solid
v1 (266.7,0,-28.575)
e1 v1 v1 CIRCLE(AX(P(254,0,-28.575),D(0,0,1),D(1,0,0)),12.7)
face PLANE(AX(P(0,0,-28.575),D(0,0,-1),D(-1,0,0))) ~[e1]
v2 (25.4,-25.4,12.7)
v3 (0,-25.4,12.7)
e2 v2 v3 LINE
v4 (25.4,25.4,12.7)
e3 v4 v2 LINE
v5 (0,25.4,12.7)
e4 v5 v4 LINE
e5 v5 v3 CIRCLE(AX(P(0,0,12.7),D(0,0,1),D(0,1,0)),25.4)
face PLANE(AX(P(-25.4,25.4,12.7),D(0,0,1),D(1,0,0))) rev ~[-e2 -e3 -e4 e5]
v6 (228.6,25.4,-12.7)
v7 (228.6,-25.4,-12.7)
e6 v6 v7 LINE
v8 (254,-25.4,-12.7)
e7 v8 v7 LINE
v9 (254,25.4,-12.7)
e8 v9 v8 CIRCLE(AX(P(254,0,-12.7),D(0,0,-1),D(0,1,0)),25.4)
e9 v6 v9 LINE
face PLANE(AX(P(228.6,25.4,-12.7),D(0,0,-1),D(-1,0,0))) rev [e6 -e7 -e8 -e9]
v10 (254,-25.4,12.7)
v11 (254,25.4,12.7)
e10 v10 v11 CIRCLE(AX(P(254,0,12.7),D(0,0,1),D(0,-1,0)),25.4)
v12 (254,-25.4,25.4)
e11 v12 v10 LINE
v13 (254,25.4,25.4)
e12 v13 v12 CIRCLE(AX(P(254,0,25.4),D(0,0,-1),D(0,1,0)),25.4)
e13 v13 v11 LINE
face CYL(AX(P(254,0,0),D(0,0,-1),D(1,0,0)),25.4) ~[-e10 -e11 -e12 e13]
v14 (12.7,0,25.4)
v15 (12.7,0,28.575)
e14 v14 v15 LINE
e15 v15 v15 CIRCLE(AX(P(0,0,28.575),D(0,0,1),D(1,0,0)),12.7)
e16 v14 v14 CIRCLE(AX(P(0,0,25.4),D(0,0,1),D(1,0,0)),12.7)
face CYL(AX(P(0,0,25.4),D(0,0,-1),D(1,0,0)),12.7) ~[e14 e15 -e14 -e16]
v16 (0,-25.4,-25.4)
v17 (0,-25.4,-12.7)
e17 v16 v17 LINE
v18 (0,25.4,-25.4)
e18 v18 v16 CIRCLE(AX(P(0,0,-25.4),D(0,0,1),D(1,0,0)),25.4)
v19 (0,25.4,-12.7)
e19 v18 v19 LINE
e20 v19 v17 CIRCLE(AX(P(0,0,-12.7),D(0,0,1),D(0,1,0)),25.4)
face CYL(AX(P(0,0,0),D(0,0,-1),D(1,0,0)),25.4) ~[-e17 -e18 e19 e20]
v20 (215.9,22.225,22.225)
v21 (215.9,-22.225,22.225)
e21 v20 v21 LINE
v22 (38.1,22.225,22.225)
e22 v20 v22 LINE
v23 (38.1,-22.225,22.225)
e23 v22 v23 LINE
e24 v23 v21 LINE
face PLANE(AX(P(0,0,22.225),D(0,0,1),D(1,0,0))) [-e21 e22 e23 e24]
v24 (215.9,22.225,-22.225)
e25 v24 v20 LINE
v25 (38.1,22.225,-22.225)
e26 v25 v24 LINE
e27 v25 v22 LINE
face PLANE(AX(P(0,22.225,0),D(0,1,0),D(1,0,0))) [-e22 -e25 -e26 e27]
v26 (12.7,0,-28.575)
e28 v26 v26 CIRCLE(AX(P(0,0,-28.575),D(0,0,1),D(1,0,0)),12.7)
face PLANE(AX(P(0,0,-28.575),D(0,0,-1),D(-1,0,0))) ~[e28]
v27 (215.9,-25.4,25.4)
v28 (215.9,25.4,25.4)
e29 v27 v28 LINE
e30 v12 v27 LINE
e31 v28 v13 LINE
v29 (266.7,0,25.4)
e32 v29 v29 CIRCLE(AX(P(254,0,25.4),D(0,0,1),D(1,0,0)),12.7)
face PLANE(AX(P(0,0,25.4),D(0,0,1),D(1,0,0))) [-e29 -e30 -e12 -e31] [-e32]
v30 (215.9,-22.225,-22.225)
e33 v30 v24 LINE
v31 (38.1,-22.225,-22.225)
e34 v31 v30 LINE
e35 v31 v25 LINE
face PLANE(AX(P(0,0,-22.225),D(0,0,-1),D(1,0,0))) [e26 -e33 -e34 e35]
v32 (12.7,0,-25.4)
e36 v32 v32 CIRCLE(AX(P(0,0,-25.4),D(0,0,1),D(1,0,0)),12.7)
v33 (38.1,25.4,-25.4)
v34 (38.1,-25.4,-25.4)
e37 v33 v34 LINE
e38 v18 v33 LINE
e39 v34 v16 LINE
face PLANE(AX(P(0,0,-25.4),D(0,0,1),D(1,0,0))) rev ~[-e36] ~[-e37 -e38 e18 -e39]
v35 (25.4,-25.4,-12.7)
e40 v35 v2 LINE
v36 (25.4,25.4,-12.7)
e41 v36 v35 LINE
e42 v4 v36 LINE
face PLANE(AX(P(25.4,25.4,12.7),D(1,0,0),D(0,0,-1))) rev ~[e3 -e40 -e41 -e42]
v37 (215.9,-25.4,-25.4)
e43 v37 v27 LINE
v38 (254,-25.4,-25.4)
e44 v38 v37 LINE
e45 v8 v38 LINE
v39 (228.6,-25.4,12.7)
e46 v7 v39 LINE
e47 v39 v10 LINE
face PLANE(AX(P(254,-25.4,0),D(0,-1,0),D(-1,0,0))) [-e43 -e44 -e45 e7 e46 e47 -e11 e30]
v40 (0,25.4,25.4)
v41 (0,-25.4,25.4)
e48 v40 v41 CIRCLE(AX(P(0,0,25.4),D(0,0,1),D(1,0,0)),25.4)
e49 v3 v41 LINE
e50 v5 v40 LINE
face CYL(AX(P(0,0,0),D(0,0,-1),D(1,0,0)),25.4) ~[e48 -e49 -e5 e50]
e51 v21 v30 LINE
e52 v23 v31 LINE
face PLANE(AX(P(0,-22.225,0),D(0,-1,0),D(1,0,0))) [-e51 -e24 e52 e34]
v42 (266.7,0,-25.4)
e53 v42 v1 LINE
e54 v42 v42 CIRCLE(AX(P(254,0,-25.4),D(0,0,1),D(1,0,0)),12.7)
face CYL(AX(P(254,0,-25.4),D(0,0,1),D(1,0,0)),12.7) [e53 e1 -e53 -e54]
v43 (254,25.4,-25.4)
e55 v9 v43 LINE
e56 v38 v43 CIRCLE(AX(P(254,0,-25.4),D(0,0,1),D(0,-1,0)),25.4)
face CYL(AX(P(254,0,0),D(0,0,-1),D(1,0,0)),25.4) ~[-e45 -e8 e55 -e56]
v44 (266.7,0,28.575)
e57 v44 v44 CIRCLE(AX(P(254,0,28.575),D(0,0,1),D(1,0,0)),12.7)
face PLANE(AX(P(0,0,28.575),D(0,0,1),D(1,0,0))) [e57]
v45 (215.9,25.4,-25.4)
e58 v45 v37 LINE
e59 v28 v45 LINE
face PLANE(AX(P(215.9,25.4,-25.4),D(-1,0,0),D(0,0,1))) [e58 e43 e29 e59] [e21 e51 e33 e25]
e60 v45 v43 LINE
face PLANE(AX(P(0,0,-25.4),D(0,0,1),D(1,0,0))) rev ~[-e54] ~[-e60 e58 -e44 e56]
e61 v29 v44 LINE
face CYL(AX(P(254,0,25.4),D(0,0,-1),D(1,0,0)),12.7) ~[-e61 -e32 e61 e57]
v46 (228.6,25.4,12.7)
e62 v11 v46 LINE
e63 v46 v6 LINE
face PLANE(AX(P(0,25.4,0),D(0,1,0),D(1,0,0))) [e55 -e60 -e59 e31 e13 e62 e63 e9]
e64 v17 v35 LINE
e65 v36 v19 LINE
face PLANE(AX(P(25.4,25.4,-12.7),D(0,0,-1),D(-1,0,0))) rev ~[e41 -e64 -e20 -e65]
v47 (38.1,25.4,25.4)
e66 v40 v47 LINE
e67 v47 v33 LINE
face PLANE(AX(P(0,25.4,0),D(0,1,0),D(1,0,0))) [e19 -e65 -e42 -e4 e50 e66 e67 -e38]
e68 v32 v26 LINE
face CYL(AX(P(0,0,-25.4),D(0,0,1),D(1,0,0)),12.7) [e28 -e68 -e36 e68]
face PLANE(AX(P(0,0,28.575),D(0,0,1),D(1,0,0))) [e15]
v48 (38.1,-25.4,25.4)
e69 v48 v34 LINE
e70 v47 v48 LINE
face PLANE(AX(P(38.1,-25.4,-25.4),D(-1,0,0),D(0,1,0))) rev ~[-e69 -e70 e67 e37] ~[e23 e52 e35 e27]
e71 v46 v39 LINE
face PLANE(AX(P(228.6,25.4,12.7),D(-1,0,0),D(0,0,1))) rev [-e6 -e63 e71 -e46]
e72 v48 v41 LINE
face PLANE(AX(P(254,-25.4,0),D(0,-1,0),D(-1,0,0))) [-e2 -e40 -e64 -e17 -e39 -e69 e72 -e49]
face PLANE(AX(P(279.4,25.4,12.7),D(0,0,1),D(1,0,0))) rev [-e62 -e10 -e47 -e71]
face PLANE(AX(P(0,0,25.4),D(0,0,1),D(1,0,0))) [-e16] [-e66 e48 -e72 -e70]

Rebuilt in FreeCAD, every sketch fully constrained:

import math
import FreeCAD as App
import Part
import Sketcher

V = App.Vector
Q = App.Units.Quantity

doc = App.newDocument("Part")
body = doc.addObject("PartDesign::Body", "Body")

# Sketch on XY plane
sketch1 = body.newObject("Sketcher::SketchObject", "Sketch")
sketch1.AttachmentSupport = (doc.getObject("XY_Plane"), [""])
sketch1.MapMode = "FlatFace"
sketch1.addGeometry([
    Part.LineSegment(V(254, 25, 0), V(0, 25, 0)),
    Part.ArcOfCircle(Part.Circle(V(0, 0, 0), V(0, 0, 1), 25), math.radians(90), math.radians(270)),
    Part.LineSegment(V(0, -25, 0), V(254, -25, 0)),
    Part.ArcOfCircle(Part.Circle(V(254, 0, 0), V(0, 0, 1), 25), math.radians(-90), math.radians(90)),
], False)
sketch1.addConstraint([
    Sketcher.Constraint("Tangent", 0, 2, 1, 1),
    Sketcher.Constraint("Tangent", 1, 2, 2, 1),
    Sketcher.Constraint("Tangent", 2, 2, 3, 1),
    Sketcher.Constraint("Tangent", 3, 2, 0, 1),
    Sketcher.Constraint("Horizontal", 0),
    Sketcher.Constraint("Horizontal", 2),
    Sketcher.Constraint("Coincident", 1, 3, -1, 1),
    Sketcher.Constraint("Radius", 1, Q("1 in")),
    Sketcher.Constraint("DistanceX", 0, 2, 0, 1, Q("10 in")),
])
pad1 = body.newObject("PartDesign::Pad", "Pad")
pad1.Profile = sketch1
pad1.Length = Q("2 in")
pad1.Midplane = True

# Sketch on XZ plane
sketch2 = body.newObject("Sketcher::SketchObject", "Sketch001")
sketch2.AttachmentSupport = (doc.getObject("XZ_Plane"), [""])
sketch2.MapMode = "FlatFace"
sketch2.AttachmentOffset = App.Placement(V(0, 0, -1 * 25.4), App.Rotation())
sketch2.addGeometry([
    Part.LineSegment(V(25, -13, 0), V(-25, -13, 0)),
    Part.LineSegment(V(-25, -13, 0), V(-25, 13, 0)),
    Part.LineSegment(V(-25, 13, 0), V(25, 13, 0)),
    Part.LineSegment(V(25, 13, 0), V(25, -13, 0)),
], False)
sketch2.addConstraint([
    Sketcher.Constraint("Coincident", 0, 2, 1, 1),
    Sketcher.Constraint("Coincident", 1, 2, 2, 1),
    Sketcher.Constraint("Coincident", 2, 2, 3, 1),
    Sketcher.Constraint("Coincident", 3, 2, 0, 1),
    Sketcher.Constraint("Horizontal", 0),
    Sketcher.Constraint("Vertical", 1),
    Sketcher.Constraint("Horizontal", 2),
    Sketcher.Constraint("Vertical", 3),
    Sketcher.Constraint("Symmetric", 0, 2, 2, 2, -1, 1),
    Sketcher.Constraint("DistanceX", 0, 2, 0, 1, Q("2 in")),
    Sketcher.Constraint("DistanceY", 1, 1, 1, 2, Q("1 in")),
])
pocket1 = body.newObject("PartDesign::Pocket", "Pocket")
pocket1.Profile = sketch2
pocket1.Type = "ThroughAll"
pocket1.Reversed = True

# Sketch on XY plane
sketch3 = body.newObject("Sketcher::SketchObject", "Sketch002")
sketch3.AttachmentSupport = (doc.getObject("XY_Plane"), [""])
sketch3.MapMode = "FlatFace"
sketch3.AttachmentOffset = App.Placement(V(0, 0, 1 * 25.4), App.Rotation())
sketch3.addGeometry([
    Part.LineSegment(V(38, -25, 0), V(216, -25, 0)),
    Part.LineSegment(V(216, -25, 0), V(216, 25, 0)),
    Part.LineSegment(V(216, 25, 0), V(38, 25, 0)),
    Part.LineSegment(V(38, 25, 0), V(38, -25, 0)),
], False)
sketch3.addConstraint([
    Sketcher.Constraint("Coincident", 0, 2, 1, 1),
    Sketcher.Constraint("Coincident", 1, 2, 2, 1),
    Sketcher.Constraint("Coincident", 2, 2, 3, 1),
    Sketcher.Constraint("Coincident", 3, 2, 0, 1),
    Sketcher.Constraint("Horizontal", 0),
    Sketcher.Constraint("Vertical", 1),
    Sketcher.Constraint("Horizontal", 2),
    Sketcher.Constraint("Vertical", 3),
    Sketcher.Constraint("DistanceX", 0, 1, 0, 2, Q("7 in")),
    Sketcher.Constraint("DistanceY", 1, 1, 1, 2, Q("2 in")),
    Sketcher.Constraint("DistanceY", 0, 2, -1, 1, Q("1 in")),
    Sketcher.Constraint("DistanceX", -1, 1, 0, 2, Q("8.5 in")),
])
pocket2 = body.newObject("PartDesign::Pocket", "Pocket001")
pocket2.Profile = sketch3
pocket2.Length = Q("0.125 in")
doc.recompute()

polarpattern = body.newObject("PartDesign::PolarPattern", "PolarPattern")
polarpattern.Originals = [pocket2]
polarpattern.Axis = (doc.getObject("X_Axis"), [""])
polarpattern.Angle = 360
polarpattern.Occurrences = 4
body.Tip = polarpattern
doc.recompute()

datumplane = body.newObject("PartDesign::Plane", "DatumPlane")
datumplane.AttachmentSupport = (doc.getObject("YZ_Plane"), [""])
datumplane.MapMode = "FlatFace"
datumplane.AttachmentOffset = App.Placement(V(0, 0, 5 * 25.4), App.Rotation())
mirrored = body.newObject("PartDesign::Mirrored", "Mirrored")
mirrored.Originals = [pocket1]
mirrored.MirrorPlane = (datumplane, [""])
body.Tip = mirrored

# Sketch on XY plane
sketch4 = body.newObject("Sketcher::SketchObject", "Sketch003")
sketch4.AttachmentSupport = (doc.getObject("XY_Plane"), [""])
sketch4.MapMode = "FlatFace"
sketch4.AttachmentOffset = App.Placement(V(0, 0, 1 * 25.4), App.Rotation())
sketch4.addGeometry([
    Part.Circle(V(0, 0, 0), V(0, 0, 1), 13),
    Part.Circle(V(254, 0, 0), V(0, 0, 1), 13),
], False)
sketch4.addConstraint([
    Sketcher.Constraint("Coincident", 0, 3, -1, 1),
    Sketcher.Constraint("Equal", 0, 1),
    Sketcher.Constraint("PointOnObject", 1, 3, -1),
    Sketcher.Constraint("Diameter", 0, Q("1 in")),
    Sketcher.Constraint("DistanceX", -1, 1, 1, 3, Q("10 in")),
])
pad2 = body.newObject("PartDesign::Pad", "Pad001")
pad2.Profile = sketch4
pad2.Length = Q("0.125 in")
doc.recompute()

mirrored2 = body.newObject("PartDesign::Mirrored", "Mirrored001")
mirrored2.Originals = [pad2]
mirrored2.MirrorPlane = (doc.getObject("XY_Plane"), [""])
body.Tip = mirrored2

doc.recompute()
